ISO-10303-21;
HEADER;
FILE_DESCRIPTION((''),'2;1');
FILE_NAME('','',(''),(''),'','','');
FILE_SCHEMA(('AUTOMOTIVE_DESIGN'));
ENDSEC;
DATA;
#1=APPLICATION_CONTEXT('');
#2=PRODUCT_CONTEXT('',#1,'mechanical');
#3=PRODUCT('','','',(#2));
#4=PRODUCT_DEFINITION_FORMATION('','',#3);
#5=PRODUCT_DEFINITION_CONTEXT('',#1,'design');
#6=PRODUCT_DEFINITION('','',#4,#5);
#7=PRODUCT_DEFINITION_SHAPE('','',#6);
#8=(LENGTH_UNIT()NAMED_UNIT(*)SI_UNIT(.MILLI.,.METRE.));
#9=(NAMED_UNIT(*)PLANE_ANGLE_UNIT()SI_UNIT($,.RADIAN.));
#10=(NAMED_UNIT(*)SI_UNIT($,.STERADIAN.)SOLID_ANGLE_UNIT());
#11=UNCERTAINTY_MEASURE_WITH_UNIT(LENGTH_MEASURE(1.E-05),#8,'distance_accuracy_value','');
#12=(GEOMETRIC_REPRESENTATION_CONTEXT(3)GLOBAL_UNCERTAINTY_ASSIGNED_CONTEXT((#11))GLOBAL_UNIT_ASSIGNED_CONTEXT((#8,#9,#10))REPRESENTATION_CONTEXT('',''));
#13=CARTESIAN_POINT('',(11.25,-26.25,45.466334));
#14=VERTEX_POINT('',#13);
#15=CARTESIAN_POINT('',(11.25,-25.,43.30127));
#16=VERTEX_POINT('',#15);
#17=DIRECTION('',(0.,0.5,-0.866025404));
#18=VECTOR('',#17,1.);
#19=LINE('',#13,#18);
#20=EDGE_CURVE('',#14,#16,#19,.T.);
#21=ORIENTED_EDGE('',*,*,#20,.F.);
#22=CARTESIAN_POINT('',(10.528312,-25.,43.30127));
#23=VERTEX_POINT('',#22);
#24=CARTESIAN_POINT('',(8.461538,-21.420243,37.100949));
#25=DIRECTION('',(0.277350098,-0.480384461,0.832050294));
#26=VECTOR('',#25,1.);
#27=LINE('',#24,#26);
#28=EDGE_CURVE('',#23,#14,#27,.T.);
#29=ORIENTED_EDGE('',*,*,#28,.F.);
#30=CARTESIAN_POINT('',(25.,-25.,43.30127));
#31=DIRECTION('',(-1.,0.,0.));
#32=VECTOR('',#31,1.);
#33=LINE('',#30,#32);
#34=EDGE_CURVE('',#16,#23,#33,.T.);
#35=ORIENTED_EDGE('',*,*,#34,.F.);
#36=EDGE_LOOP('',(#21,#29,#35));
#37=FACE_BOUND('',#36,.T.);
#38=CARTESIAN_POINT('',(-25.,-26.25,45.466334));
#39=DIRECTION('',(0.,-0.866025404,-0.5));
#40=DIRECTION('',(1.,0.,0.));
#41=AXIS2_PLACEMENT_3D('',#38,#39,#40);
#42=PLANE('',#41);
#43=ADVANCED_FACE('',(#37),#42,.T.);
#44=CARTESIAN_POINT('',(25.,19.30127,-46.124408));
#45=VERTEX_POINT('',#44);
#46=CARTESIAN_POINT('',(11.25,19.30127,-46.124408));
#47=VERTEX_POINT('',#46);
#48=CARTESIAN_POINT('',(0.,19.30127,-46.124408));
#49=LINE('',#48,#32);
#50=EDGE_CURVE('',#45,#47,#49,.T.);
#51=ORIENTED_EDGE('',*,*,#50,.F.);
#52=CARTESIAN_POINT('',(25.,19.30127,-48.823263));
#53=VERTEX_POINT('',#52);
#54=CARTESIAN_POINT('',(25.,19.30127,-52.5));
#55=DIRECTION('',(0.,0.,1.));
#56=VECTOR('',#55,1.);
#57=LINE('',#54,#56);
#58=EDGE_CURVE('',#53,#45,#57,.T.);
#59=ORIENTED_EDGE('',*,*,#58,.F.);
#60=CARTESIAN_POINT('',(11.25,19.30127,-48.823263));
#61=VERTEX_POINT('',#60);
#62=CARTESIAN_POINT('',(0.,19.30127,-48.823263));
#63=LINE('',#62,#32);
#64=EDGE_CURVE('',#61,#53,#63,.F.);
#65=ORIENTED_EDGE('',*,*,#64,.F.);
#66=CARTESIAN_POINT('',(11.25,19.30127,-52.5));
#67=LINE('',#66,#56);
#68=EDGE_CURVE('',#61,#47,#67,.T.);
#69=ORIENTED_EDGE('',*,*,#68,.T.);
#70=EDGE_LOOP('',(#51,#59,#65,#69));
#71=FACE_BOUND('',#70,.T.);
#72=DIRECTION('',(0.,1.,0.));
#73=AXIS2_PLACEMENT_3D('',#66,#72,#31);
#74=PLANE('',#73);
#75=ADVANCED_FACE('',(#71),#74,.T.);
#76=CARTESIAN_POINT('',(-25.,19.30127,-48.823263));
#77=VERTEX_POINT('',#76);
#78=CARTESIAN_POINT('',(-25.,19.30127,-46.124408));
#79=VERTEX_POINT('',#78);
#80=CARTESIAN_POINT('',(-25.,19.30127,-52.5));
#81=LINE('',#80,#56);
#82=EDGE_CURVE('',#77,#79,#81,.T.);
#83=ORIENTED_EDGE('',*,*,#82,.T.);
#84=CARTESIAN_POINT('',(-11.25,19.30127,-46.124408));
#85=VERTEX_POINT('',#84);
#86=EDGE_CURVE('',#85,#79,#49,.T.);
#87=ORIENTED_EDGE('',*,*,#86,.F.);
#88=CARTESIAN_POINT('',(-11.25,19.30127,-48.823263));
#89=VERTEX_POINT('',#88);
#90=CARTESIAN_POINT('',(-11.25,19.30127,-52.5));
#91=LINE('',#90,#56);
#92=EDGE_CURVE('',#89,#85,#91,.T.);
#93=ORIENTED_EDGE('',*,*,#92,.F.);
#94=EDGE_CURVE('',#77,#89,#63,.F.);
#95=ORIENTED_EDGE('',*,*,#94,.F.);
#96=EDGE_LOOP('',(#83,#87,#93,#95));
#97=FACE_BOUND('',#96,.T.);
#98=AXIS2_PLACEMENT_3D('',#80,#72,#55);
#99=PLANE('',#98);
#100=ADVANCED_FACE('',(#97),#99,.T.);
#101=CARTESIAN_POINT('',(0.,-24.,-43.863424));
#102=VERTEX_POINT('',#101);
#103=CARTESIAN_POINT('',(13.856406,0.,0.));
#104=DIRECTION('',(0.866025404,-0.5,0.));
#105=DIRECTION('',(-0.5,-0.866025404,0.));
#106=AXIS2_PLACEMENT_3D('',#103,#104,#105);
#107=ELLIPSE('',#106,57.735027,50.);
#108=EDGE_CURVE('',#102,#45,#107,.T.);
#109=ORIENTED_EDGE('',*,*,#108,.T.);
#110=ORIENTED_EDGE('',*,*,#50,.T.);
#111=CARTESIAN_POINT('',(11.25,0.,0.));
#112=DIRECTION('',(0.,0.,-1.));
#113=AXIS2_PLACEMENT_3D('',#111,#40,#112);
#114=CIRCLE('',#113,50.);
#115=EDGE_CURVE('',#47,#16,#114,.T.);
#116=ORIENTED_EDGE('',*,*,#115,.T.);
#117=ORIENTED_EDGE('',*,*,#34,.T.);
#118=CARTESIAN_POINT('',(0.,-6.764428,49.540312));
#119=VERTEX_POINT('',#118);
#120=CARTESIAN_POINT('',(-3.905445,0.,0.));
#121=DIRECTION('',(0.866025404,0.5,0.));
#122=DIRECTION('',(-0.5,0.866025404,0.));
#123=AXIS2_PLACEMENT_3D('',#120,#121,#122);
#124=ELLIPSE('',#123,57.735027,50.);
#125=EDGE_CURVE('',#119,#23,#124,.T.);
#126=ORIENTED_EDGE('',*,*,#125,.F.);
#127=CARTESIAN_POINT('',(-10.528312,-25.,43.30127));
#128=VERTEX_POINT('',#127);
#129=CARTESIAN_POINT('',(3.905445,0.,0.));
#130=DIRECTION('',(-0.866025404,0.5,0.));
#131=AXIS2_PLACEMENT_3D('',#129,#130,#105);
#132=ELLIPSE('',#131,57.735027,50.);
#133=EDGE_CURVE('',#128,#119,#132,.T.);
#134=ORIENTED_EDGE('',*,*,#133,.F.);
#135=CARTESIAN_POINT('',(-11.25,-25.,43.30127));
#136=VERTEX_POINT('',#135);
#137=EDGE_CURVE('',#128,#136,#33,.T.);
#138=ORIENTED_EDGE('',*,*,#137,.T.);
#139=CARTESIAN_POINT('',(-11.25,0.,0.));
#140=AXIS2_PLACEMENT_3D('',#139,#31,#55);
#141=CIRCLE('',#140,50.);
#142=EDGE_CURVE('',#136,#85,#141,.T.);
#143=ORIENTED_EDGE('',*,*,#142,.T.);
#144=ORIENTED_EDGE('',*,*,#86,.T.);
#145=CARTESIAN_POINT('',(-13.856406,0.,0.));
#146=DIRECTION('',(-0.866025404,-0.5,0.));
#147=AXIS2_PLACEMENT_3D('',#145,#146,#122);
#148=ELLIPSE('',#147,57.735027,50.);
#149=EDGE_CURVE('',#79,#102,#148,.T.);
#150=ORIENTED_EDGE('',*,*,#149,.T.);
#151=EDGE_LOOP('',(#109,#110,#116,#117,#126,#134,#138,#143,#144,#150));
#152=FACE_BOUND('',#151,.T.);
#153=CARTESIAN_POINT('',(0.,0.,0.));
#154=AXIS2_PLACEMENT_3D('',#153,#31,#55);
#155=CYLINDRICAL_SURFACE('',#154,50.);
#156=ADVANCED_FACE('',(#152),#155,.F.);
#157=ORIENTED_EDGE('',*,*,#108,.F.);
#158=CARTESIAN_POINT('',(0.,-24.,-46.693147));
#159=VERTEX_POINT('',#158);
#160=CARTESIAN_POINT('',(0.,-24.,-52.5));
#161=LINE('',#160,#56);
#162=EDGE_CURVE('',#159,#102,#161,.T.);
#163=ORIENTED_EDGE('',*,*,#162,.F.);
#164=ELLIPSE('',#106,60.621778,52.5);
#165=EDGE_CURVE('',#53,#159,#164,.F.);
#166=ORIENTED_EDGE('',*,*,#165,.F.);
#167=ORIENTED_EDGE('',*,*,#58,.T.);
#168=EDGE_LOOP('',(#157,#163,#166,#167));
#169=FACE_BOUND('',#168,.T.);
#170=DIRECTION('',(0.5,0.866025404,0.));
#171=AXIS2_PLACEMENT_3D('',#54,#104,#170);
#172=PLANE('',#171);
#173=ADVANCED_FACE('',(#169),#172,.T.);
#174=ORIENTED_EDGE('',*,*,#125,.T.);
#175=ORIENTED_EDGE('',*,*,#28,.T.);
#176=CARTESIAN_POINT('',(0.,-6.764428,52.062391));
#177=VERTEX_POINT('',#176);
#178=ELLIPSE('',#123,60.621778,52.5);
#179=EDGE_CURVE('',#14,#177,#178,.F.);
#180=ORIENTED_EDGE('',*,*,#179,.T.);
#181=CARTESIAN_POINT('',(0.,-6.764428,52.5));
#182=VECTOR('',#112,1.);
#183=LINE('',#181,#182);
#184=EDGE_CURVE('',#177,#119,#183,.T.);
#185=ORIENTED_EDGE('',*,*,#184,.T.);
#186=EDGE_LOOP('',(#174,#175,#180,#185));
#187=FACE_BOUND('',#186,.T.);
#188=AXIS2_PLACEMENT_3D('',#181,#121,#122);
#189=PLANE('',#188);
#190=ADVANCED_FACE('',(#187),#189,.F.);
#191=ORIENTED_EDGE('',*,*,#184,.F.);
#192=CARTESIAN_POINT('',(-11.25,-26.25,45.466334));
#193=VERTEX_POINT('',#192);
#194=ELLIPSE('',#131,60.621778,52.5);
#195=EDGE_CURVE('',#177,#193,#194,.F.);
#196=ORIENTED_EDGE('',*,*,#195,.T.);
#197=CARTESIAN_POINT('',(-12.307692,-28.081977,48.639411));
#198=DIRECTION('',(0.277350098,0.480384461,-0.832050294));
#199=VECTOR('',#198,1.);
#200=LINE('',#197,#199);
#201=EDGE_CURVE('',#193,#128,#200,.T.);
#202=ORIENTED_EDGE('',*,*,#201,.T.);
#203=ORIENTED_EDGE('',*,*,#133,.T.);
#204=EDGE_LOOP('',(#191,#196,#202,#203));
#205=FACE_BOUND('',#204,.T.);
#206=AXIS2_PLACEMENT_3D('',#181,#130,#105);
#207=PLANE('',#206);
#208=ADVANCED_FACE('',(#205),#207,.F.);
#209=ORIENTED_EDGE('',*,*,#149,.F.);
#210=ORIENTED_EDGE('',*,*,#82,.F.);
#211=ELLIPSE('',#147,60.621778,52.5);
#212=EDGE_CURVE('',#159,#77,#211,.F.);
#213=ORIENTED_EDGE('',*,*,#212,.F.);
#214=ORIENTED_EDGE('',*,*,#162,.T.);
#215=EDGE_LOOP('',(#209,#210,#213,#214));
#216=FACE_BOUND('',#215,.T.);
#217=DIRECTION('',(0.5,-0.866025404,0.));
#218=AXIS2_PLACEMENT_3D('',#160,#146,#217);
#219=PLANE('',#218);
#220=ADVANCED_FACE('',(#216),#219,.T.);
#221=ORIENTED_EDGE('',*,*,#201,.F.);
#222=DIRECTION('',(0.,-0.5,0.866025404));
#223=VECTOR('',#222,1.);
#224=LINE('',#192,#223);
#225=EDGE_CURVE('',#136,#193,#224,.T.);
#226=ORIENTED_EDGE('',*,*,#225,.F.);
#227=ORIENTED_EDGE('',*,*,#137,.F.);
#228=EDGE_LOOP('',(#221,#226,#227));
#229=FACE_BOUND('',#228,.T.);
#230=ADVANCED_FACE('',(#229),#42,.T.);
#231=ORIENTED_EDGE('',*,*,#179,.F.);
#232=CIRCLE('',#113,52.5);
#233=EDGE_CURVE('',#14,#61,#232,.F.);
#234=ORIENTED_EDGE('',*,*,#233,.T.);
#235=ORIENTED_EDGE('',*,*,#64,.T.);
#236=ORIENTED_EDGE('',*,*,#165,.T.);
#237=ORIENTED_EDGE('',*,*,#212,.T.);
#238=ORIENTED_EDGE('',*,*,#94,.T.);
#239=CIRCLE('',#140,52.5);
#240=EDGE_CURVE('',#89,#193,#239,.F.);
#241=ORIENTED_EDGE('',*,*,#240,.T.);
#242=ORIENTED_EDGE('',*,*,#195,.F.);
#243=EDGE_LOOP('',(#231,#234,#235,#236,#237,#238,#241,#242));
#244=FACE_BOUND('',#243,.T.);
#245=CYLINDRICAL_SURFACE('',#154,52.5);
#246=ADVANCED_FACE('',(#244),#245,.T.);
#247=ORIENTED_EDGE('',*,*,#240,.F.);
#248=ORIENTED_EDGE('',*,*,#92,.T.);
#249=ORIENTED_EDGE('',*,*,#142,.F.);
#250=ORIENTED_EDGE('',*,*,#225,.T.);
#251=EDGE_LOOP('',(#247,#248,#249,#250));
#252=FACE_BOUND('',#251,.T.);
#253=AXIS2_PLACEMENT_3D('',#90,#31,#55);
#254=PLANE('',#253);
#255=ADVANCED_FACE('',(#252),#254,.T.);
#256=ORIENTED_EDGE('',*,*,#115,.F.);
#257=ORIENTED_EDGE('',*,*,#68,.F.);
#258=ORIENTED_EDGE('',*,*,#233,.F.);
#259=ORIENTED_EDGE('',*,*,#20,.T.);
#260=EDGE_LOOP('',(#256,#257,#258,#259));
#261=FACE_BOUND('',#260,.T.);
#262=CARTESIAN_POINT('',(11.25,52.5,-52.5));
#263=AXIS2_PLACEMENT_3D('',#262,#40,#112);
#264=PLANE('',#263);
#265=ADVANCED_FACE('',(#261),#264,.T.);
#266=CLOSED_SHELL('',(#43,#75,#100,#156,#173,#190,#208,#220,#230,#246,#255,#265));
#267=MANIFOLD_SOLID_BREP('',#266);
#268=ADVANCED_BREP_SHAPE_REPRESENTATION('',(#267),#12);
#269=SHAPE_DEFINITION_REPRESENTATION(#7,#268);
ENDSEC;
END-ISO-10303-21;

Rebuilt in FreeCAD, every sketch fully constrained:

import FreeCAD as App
import Part
import Sketcher
from FreeCAD import Vector
Q = App.Units.Quantity

doc = App.newDocument("Part")
body = doc.addObject("PartDesign::Body", "Body")

sketch1 = doc.addObject("Sketcher::SketchObject", "Sketch")
body.addObject(sketch1)
sketch1.AttachmentSupport = (doc.XY_Plane, [""])
sketch1.MapMode = "FlatFace"
sketch1.addGeometry(Part.LineSegment(Vector(-25, 52.5, 0), Vector(-25, 50, 0)), False)
sketch1.addGeometry(Part.LineSegment(Vector(-25, 50, 0), Vector(25, 50, 0)), False)
sketch1.addGeometry(Part.LineSegment(Vector(25, 50, 0), Vector(25, 52.5, 0)), False)
sketch1.addGeometry(Part.LineSegment(Vector(25, 52.5, 0), Vector(-25, 52.5, 0)), False)
sketch1.addConstraint(Sketcher.Constraint("Coincident", 0, 2, 1, 1))
sketch1.addConstraint(Sketcher.Constraint("Coincident", 1, 2, 2, 1))
sketch1.addConstraint(Sketcher.Constraint("Coincident", 2, 2, 3, 1))
sketch1.addConstraint(Sketcher.Constraint("Coincident", 3, 2, 0, 1))
sketch1.addConstraint(Sketcher.Constraint("Vertical", 0))
sketch1.addConstraint(Sketcher.Constraint("Horizontal", 1))
sketch1.addConstraint(Sketcher.Constraint("Vertical", 2))
sketch1.addConstraint(Sketcher.Constraint("Horizontal", 3))
sketch1.addConstraint(Sketcher.Constraint("DistanceX", 1, 1, 1, 2, Q("50 mm")))
sketch1.addConstraint(Sketcher.Constraint("DistanceY", 0, 2, 0, 1, Q("2.5 mm")))
sketch1.addConstraint(Sketcher.Constraint("DistanceX", 0, 2, -1, 1, Q("25 mm")))
sketch1.addConstraint(Sketcher.Constraint("DistanceY", -1, 1, 0, 2, Q("50 mm")))
revolution = doc.addObject("PartDesign::Revolution", "Revolution")
body.addObject(revolution)
revolution.Profile = sketch1
revolution.ReferenceAxis = (sketch1, ["H_Axis"])
revolution.Angle = 120

sketch2 = doc.addObject("Sketcher::SketchObject", "Sketch001")
body.addObject(sketch2)
sketch2.AttachmentSupport = (doc.XY_Plane, [""])
sketch2.MapMode = "FlatFace"
sketch2.addGeometry(Part.LineSegment(Vector(-25, 52.5, 0), Vector(-25, 50, 0)), False)
sketch2.addGeometry(Part.LineSegment(Vector(-25, 50, 0), Vector(25, 50, 0)), False)
sketch2.addGeometry(Part.LineSegment(Vector(25, 50, 0), Vector(25, 52.5, 0)), False)
sketch2.addGeometry(Part.LineSegment(Vector(25, 52.5, 0), Vector(-25, 52.5, 0)), False)
sketch2.addConstraint(Sketcher.Constraint("Coincident", 0, 2, 1, 1))
sketch2.addConstraint(Sketcher.Constraint("Coincident", 1, 2, 2, 1))
sketch2.addConstraint(Sketcher.Constraint("Coincident", 2, 2, 3, 1))
sketch2.addConstraint(Sketcher.Constraint("Coincident", 3, 2, 0, 1))
sketch2.addConstraint(Sketcher.Constraint("Vertical", 0))
sketch2.addConstraint(Sketcher.Constraint("Horizontal", 1))
sketch2.addConstraint(Sketcher.Constraint("Vertical", 2))
sketch2.addConstraint(Sketcher.Constraint("Horizontal", 3))
sketch2.addConstraint(Sketcher.Constraint("DistanceX", 1, 1, 1, 2, Q("50 mm")))
sketch2.addConstraint(Sketcher.Constraint("DistanceY", 0, 2, 0, 1, Q("2.5 mm")))
sketch2.addConstraint(Sketcher.Constraint("DistanceX", 0, 2, -1, 1, Q("25 mm")))
sketch2.addConstraint(Sketcher.Constraint("DistanceY", -1, 1, 0, 2, Q("50 mm")))
revolution2 = doc.addObject("PartDesign::Revolution", "Revolution001")
body.addObject(revolution2)
revolution2.Profile = sketch2
revolution2.ReferenceAxis = (sketch2, ["H_Axis"])
revolution2.Angle = 120
revolution2.Reversed = True

sketch3 = doc.addObject("Sketcher::SketchObject", "Sketch002")
body.addObject(sketch3)
sketch3.AttachmentSupport = (doc.XY_Plane, [""])
sketch3.MapMode = "FlatFace"
sketch3.addGeometry(Part.LineSegment(Vector(-40.045, 67.545, 0), Vector(-40.045, -41.295, 0)), False)
sketch3.addGeometry(Part.LineSegment(Vector(-40.045, -41.295, 0), Vector(40.045, -41.295, 0)), False)
sketch3.addGeometry(Part.LineSegment(Vector(40.045, -41.295, 0), Vector(40.045, 67.545, 0)), False)
sketch3.addGeometry(Part.LineSegment(Vector(40.045, 67.545, 0), Vector(-40.045, 67.545, 0)), False)
sketch3.addGeometry(Part.LineSegment(Vector(-11.25, 19.30127, 0), Vector(-11.25, 52.5, 0)), False)
sketch3.addGeometry(Part.LineSegment(Vector(-11.25, 52.5, 0), Vector(11.25, 52.5, 0)), False)
sketch3.addGeometry(Part.LineSegment(Vector(11.25, 52.5, 0), Vector(11.25, 19.30127, 0)), False)
sketch3.addGeometry(Part.LineSegment(Vector(11.25, 19.30127, 0), Vector(25, 19.30127, 0)), False)
sketch3.addGeometry(Part.LineSegment(Vector(25, 19.30127, 0), Vector(0, -24, 0)), False)
sketch3.addGeometry(Part.LineSegment(Vector(0, -24, 0), Vector(-25, 19.30127, 0)), False)
sketch3.addGeometry(Part.LineSegment(Vector(-25, 19.30127, 0), Vector(-11.25, 19.30127, 0)), False)
sketch3.addConstraint(Sketcher.Constraint("Coincident", 0, 2, 1, 1))
sketch3.addConstraint(Sketcher.Constraint("Coincident", 1, 2, 2, 1))
sketch3.addConstraint(Sketcher.Constraint("Coincident", 2, 2, 3, 1))
sketch3.addConstraint(Sketcher.Constraint("Coincident", 3, 2, 0, 1))
sketch3.addConstraint(Sketcher.Constraint("Coincident", 4, 2, 5, 1))
sketch3.addConstraint(Sketcher.Constraint("Coincident", 5, 2, 6, 1))
sketch3.addConstraint(Sketcher.Constraint("Coincident", 6, 2, 7, 1))
sketch3.addConstraint(Sketcher.Constraint("Coincident", 7, 2, 8, 1))
sketch3.addConstraint(Sketcher.Constraint("Coincident", 8, 2, 9, 1))
sketch3.addConstraint(Sketcher.Constraint("Coincident", 9, 2, 10, 1))
sketch3.addConstraint(Sketcher.Constraint("Coincident", 10, 2, 4, 1))
sketch3.addConstraint(Sketcher.Constraint("Vertical", 0))
sketch3.addConstraint(Sketcher.Constraint("Horizontal", 1))
sketch3.addConstraint(Sketcher.Constraint("Vertical", 2))
sketch3.addConstraint(Sketcher.Constraint("Horizontal", 3))
sketch3.addConstraint(Sketcher.Constraint("Vertical", 4))
sketch3.addConstraint(Sketcher.Constraint("Horizontal", 5))
sketch3.addConstraint(Sketcher.Constraint("Vertical", 6))
sketch3.addConstraint(Sketcher.Constraint("Horizontal", 7))
sketch3.addConstraint(Sketcher.Constraint("Horizontal", 10))
sketch3.addConstraint(Sketcher.Constraint("Symmetric", 7, 2, 9, 2, -2))
sketch3.addConstraint(Sketcher.Constraint("PointOnObject", 8, 2, -2))
sketch3.addConstraint(Sketcher.Constraint("Equal", 7, 10))
sketch3.addConstraint(Sketcher.Constraint("Angle", 8, Q("-120 deg")))
sketch3.addConstraint(Sketcher.Constraint("Distance", 8, Q("50 mm")))
sketch3.addConstraint(Sketcher.Constraint("DistanceX", 5, 1, 5, 2, Q("22.5 mm")))
sketch3.addConstraint(Sketcher.Constraint("DistanceY", 8, 2, -1, 1, Q("24 mm")))
sketch3.addConstraint(Sketcher.Constraint("DistanceX", 1, 1, 1, 2, Q("80.09 mm")))
sketch3.addConstraint(Sketcher.Constraint("DistanceY", 0, 2, 0, 1, Q("108.84 mm")))
sketch3.addConstraint(Sketcher.Constraint("DistanceY", -1, 1, 4, 2, Q("52.5 mm")))
sketch3.addConstraint(Sketcher.Constraint("DistanceX", 0, 2, -1, 1, Q("40.045 mm")))
sketch3.addConstraint(Sketcher.Constraint("DistanceY", 0, 2, -1, 1, Q("41.295 mm")))
pocket1 = doc.addObject("PartDesign::Pocket", "Pocket")
body.addObject(pocket1)
pocket1.Profile = sketch3
pocket1.Type = "ThroughAll"

sketch4 = doc.addObject("Sketcher::SketchObject", "Sketch003")
body.addObject(sketch4)
sketch4.AttachmentSupport = (doc.XY_Plane, [""])
sketch4.MapMode = "FlatFace"
sketch4.addGeometry(Part.LineSegment(Vector(-40.045, 67.545, 0), Vector(-40.045, -41.295, 0)), False)
sketch4.addGeometry(Part.LineSegment(Vector(-40.045, -41.295, 0), Vector(40.045, -41.295, 0)), False)
sketch4.addGeometry(Part.LineSegment(Vector(40.045, -41.295, 0), Vector(40.045, 67.545, 0)), False)
sketch4.addGeometry(Part.LineSegment(Vector(40.045, 67.545, 0), Vector(-40.045, 67.545, 0)), False)
sketch4.addGeometry(Part.LineSegment(Vector(11.25, -26.25, 0), Vector(0, -6.764428, 0)), False)
sketch4.addGeometry(Part.LineSegment(Vector(0, -6.764428, 0), Vector(-11.25, -26.25, 0)), False)
sketch4.addGeometry(Part.LineSegment(Vector(-11.25, -26.25, 0), Vector(-11.25, 52.5, 0)), False)
sketch4.addGeometry(Part.LineSegment(Vector(-11.25, 52.5, 0), Vector(11.25, 52.5, 0)), False)
sketch4.addGeometry(Part.LineSegment(Vector(11.25, 52.5, 0), Vector(11.25, -26.25, 0)), False)
sketch4.addConstraint(Sketcher.Constraint("Coincident", 0, 2, 1, 1))
sketch4.addConstraint(Sketcher.Constraint("Coincident", 1, 2, 2, 1))
sketch4.addConstraint(Sketcher.Constraint("Coincident", 2, 2, 3, 1))
sketch4.addConstraint(Sketcher.Constraint("Coincident", 3, 2, 0, 1))
sketch4.addConstraint(Sketcher.Constraint("Coincident", 4, 2, 5, 1))
sketch4.addConstraint(Sketcher.Constraint("Coincident", 5, 2, 6, 1))
sketch4.addConstraint(Sketcher.Constraint("Coincident", 6, 2, 7, 1))
sketch4.addConstraint(Sketcher.Constraint("Coincident", 7, 2, 8, 1))
sketch4.addConstraint(Sketcher.Constraint("Coincident", 8, 2, 4, 1))
sketch4.addConstraint(Sketcher.Constraint("Vertical", 0))
sketch4.addConstraint(Sketcher.Constraint("Horizontal", 1))
sketch4.addConstraint(Sketcher.Constraint("Vertical", 2))
sketch4.addConstraint(Sketcher.Constraint("Horizontal", 3))
sketch4.addConstraint(Sketcher.Constraint("Vertical", 6))
sketch4.addConstraint(Sketcher.Constraint("Horizontal", 7))
sketch4.addConstraint(Sketcher.Constraint("Vertical", 8))
sketch4.addConstraint(Sketcher.Constraint("Symmetric", 5, 2, 8, 2, -2))
sketch4.addConstraint(Sketcher.Constraint("PointOnObject", 4, 2, -2))
sketch4.addConstraint(Sketcher.Constraint("Angle", 4, Q("120 deg")))
sketch4.addConstraint(Sketcher.Constraint("DistanceX", 7, 1, 7, 2, Q("22.5 mm")))
sketch4.addConstraint(Sketcher.Constraint("DistanceX", 1, 1, 1, 2, Q("80.09 mm")))
sketch4.addConstraint(Sketcher.Constraint("DistanceY", 0, 2, 0, 1, Q("108.84 mm")))
sketch4.addConstraint(Sketcher.Constraint("DistanceY", 6, 1, 6, 2, Q("78.75 mm")))
sketch4.addConstraint(Sketcher.Constraint("DistanceY", -1, 1, 6, 2, Q("52.5 mm")))
sketch4.addConstraint(Sketcher.Constraint("DistanceX", 0, 2, -1, 1, Q("40.045 mm")))
sketch4.addConstraint(Sketcher.Constraint("DistanceY", 0, 2, -1, 1, Q("41.295 mm")))
pocket2 = doc.addObject("PartDesign::Pocket", "Pocket001")
body.addObject(pocket2)
pocket2.Profile = sketch4
pocket2.Type = "ThroughAll"
pocket2.Reversed = True

doc.recompute()
